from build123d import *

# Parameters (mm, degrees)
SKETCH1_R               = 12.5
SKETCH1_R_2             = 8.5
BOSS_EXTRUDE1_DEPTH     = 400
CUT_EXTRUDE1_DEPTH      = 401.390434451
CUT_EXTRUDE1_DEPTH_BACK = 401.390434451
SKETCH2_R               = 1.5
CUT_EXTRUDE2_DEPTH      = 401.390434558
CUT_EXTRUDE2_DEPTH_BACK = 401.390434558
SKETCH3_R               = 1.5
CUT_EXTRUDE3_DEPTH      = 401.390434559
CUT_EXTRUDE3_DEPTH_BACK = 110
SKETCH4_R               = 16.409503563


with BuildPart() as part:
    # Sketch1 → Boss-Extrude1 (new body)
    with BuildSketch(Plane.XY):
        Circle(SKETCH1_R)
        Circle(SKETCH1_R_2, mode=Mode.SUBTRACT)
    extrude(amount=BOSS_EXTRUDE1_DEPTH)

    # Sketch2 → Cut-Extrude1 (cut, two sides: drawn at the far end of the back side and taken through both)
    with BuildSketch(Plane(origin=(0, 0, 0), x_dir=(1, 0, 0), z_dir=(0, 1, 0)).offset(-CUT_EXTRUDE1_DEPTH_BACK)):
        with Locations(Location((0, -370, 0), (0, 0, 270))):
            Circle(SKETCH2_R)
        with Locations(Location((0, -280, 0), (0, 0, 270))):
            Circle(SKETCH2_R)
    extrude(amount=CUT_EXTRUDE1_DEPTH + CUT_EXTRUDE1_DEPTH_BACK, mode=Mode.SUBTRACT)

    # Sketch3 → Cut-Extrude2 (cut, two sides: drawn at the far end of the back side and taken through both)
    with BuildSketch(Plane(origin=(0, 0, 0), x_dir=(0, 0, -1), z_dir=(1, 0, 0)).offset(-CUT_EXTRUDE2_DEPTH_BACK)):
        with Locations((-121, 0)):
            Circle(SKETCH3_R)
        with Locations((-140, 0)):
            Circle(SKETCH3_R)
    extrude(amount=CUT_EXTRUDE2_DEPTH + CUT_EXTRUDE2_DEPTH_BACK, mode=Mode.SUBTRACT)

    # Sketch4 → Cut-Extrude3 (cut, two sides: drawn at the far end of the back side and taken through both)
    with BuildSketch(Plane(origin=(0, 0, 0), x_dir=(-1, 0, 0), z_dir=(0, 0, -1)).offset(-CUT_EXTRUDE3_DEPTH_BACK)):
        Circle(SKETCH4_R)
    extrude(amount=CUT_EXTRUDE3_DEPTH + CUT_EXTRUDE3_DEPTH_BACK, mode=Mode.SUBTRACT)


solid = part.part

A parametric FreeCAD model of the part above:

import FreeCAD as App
import Part
import Sketcher
from FreeCAD import Vector
Q = App.Units.Quantity

doc = App.newDocument("Part")
body = doc.addObject("PartDesign::Body", "Body")

sketch1 = body.newObject("Sketcher::SketchObject", "Sketch")
sketch1.AttachmentSupport = (doc.getObject("XY_Plane"), [""])
sketch1.MapMode = "FlatFace"
sketch1.addGeometry(Part.Circle(Vector(0, 0, 0), Vector(0, 0, 1), 12), False)
sketch1.addGeometry(Part.Circle(Vector(0, 0, 0), Vector(0, 0, 1), 8), False)
sketch1.addConstraint(Sketcher.Constraint("Coincident", 0, 3, -1, 1))
sketch1.addConstraint(Sketcher.Constraint("Coincident", 1, 3, -1, 1))
sketch1.addConstraint(Sketcher.Constraint("Diameter", 0, Q("25 mm")))
sketch1.addConstraint(Sketcher.Constraint("Diameter", 1, Q("17 mm")))
pad1 = body.newObject("PartDesign::Pad", "Pad")
pad1.Profile = sketch1
pad1.Length = 400

sketch2 = body.newObject("Sketcher::SketchObject", "Sketch001")
sketch2.AttachmentSupport = (doc.getObject("XZ_Plane"), [""])
sketch2.MapMode = "FlatFace"
sketch2.addGeometry(Part.Circle(Vector(0, 370, 0), Vector(0, 0, 1), 1.5), False)
sketch2.addGeometry(Part.Circle(Vector(0, 280, 0), Vector(0, 0, 1), 1.5), False)
sketch2.addConstraint(Sketcher.Constraint("Equal", 0, 1))
sketch2.addConstraint(Sketcher.Constraint("PointOnObject", 0, 3, -2))
sketch2.addConstraint(Sketcher.Constraint("PointOnObject", 1, 3, -2))
sketch2.addConstraint(Sketcher.Constraint("Diameter", 0, Q("3 mm")))
sketch2.addConstraint(Sketcher.Constraint("DistanceY", -1, 1, 0, 3, Q("370 mm")))
sketch2.addConstraint(Sketcher.Constraint("DistanceY", -1, 1, 1, 3, Q("280 mm")))
pocket1 = body.newObject("PartDesign::Pocket", "Pocket")
pocket1.Profile = sketch2
pocket1.Type = "ThroughAll"
pocket1.Midplane = True

sketch3 = body.newObject("Sketcher::SketchObject", "Sketch002")
sketch3.AttachmentSupport = (doc.getObject("YZ_Plane"), [""])
sketch3.MapMode = "FlatFace"
sketch3.addGeometry(Part.Circle(Vector(0, 121, 0), Vector(0, 0, 1), 1.5), False)
sketch3.addGeometry(Part.Circle(Vector(0, 140, 0), Vector(0, 0, 1), 1.5), False)
sketch3.addConstraint(Sketcher.Constraint("Equal", 0, 1))
sketch3.addConstraint(Sketcher.Constraint("PointOnObject", 0, 3, -2))
sketch3.addConstraint(Sketcher.Constraint("PointOnObject", 1, 3, -2))
sketch3.addConstraint(Sketcher.Constraint("Diameter", 0, Q("3 mm")))
sketch3.addConstraint(Sketcher.Constraint("DistanceY", -1, 1, 0, 3, Q("121 mm")))
sketch3.addConstraint(Sketcher.Constraint("DistanceY", -1, 1, 1, 3, Q("140 mm")))
pocket2 = body.newObject("PartDesign::Pocket", "Pocket001")
pocket2.Profile = sketch3
pocket2.Type = "ThroughAll"
pocket2.Midplane = True

sketch4 = body.newObject("Sketcher::SketchObject", "Sketch003")
sketch4.AttachmentSupport = (doc.getObject("XY_Plane"), [""])
sketch4.MapMode = "FlatFace"
sketch4.addGeometry(Part.Circle(Vector(0, 0, 0), Vector(0, 0, 1), 16), False)
sketch4.addConstraint(Sketcher.Constraint("Coincident", 0, 3, -1, 1))
sketch4.addConstraint(Sketcher.Constraint("Diameter", 0, Q("32.819007 mm")))
pocket3 = body.newObject("PartDesign::Pocket", "Pocket002")
pocket3.Profile = sketch4
pocket3.Type = "TwoLengths"
pocket3.Length = 401.390435
pocket3.Length2 = 110

doc.recompute()
